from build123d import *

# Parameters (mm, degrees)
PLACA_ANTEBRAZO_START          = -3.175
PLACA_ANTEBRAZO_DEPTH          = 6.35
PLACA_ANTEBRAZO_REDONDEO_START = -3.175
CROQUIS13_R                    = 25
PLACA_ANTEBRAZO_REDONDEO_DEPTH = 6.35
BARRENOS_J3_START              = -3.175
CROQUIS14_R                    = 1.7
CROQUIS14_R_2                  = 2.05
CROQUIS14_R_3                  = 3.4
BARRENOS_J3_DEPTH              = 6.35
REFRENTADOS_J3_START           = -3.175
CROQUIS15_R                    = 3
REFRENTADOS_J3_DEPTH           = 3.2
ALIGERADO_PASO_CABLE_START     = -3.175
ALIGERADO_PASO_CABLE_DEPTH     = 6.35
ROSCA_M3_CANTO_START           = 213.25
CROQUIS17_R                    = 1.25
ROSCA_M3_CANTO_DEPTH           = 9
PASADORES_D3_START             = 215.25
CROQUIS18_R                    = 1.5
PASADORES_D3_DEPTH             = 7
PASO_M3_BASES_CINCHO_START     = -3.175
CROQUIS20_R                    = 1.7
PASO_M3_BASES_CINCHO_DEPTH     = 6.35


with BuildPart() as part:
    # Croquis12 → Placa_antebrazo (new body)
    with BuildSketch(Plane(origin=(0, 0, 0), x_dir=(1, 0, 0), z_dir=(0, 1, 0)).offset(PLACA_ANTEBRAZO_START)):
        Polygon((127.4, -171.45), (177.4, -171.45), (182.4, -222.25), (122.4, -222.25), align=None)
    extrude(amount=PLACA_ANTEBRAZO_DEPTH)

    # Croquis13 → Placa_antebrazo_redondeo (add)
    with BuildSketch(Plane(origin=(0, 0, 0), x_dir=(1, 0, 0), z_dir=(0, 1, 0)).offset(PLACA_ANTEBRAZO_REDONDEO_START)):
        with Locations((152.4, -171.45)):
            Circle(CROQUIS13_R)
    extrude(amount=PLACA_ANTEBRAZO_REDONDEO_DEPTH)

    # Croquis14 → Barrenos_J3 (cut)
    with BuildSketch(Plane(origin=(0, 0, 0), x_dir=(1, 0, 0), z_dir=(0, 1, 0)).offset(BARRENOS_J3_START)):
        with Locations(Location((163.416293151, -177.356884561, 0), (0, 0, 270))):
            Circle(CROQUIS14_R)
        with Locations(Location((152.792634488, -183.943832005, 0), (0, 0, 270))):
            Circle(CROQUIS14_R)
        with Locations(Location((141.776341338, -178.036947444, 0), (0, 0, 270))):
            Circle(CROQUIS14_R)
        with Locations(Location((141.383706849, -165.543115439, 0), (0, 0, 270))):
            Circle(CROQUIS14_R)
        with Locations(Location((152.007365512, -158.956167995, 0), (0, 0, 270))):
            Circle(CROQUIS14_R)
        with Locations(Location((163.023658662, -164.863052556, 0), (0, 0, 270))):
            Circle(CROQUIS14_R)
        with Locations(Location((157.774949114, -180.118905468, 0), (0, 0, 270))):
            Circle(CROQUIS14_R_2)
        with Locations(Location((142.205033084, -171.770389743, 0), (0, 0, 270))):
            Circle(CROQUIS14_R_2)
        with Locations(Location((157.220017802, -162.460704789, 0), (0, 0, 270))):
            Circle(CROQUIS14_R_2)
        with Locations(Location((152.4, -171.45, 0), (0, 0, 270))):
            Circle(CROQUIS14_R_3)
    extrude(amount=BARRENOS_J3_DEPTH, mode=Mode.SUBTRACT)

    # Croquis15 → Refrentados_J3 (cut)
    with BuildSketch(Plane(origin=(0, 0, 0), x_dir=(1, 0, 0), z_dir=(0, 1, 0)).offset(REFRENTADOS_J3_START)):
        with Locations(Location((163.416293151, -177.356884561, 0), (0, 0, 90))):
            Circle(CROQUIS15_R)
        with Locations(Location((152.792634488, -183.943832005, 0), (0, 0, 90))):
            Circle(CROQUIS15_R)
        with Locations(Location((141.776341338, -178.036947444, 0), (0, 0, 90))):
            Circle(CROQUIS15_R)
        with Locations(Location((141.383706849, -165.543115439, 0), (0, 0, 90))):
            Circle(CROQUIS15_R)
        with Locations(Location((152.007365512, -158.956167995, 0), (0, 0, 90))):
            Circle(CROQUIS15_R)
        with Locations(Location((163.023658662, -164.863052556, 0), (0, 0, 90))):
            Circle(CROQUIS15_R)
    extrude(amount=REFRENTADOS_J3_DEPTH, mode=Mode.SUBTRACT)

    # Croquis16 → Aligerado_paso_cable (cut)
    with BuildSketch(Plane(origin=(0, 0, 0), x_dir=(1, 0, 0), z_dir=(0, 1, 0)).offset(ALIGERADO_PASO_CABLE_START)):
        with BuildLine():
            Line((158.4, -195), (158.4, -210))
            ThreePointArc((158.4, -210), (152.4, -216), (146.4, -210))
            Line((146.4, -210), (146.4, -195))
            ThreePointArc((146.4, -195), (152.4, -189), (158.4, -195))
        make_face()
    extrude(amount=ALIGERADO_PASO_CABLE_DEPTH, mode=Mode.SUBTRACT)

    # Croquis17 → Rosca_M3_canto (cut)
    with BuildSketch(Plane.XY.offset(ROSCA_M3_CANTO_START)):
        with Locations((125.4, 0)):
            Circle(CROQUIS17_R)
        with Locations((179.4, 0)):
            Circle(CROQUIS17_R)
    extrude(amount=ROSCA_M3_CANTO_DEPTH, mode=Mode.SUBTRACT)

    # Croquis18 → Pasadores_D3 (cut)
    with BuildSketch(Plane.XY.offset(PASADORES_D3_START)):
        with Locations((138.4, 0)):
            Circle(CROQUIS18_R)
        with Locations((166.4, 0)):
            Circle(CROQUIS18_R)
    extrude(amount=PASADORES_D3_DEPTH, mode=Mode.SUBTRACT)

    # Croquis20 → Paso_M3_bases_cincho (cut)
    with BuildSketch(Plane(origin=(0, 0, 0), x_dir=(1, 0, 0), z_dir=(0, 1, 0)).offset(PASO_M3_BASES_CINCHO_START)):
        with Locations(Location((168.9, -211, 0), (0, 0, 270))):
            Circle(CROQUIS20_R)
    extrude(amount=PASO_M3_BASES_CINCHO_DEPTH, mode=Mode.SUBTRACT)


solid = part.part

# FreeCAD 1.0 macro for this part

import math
import FreeCAD as App
import Part
import Sketcher
from FreeCAD import Vector
Q = App.Units.Quantity


def add_polygon(sketch, points):
    """Adds a closed chain of lines whose ends are joined by coincident constraints."""
    first, n = sketch.GeometryCount, len(points)
    for a, b in zip(points, points[1:] + points[:1]):
        sketch.addGeometry(Part.LineSegment(App.Vector(*a, 0), App.Vector(*b, 0)), False)
    for i in range(n):
        sketch.addConstraint(Sketcher.Constraint("Coincident", first + i, 2, first + (i + 1) % n, 1))

doc = App.newDocument("Part")
body = doc.addObject("PartDesign::Body", "Body")

sketch1 = body.newObject("Sketcher::SketchObject", "Sketch")
sketch1.AttachmentSupport = (doc.getObject("XZ_Plane"), [""])
sketch1.MapMode = "FlatFace"
sketch1.AttachmentOffset = App.Placement(Vector(0, 0, 3.175), App.Rotation())
add_polygon(sketch1, [(177, 171), (127, 171), (122, 222), (182, 222)])
sketch1.addConstraint([
    Sketcher.Constraint("Horizontal", 0),
    Sketcher.Constraint("Horizontal", 2),
    Sketcher.Constraint("Equal", 1, 3),
    Sketcher.Constraint("DistanceX", 0, 2, 0, 1, Q("50 mm")),
    Sketcher.Constraint("DistanceX", 2, 1, 2, 2, Q("60 mm")),
    Sketcher.Constraint("DistanceX", -1, 1, 0, 2, Q("127.4 mm")),
    Sketcher.Constraint("DistanceY", 0, 2, 1, 2, Q("50.8 mm")),
    Sketcher.Constraint("DistanceY", -1, 1, 0, 2, Q("171.45 mm")),
])
pad1 = body.newObject("PartDesign::Pad", "Pad")
pad1.Profile = sketch1
pad1.Length = 6.35
pad1.Reversed = True

sketch2 = body.newObject("Sketcher::SketchObject", "Sketch001")
sketch2.AttachmentSupport = (doc.getObject("XZ_Plane"), [""])
sketch2.MapMode = "FlatFace"
sketch2.AttachmentOffset = App.Placement(Vector(0, 0, 3.175), App.Rotation())
sketch2.addGeometry(Part.Circle(Vector(152, 171, 0), Vector(0, 0, 1), 25), False)
sketch2.addConstraint([
    Sketcher.Constraint("Diameter", 0, Q("50 mm")),
    Sketcher.Constraint("DistanceX", -1, 1, 0, 3, Q("152.4 mm")),
    Sketcher.Constraint("DistanceY", -1, 1, 0, 3, Q("171.45 mm")),
])
pad2 = body.newObject("PartDesign::Pad", "Pad001")
pad2.Profile = sketch2
pad2.Length = 6.35
pad2.Reversed = True

sketch3 = body.newObject("Sketcher::SketchObject", "Sketch002")
sketch3.AttachmentSupport = (doc.getObject("XZ_Plane"), [""])
sketch3.MapMode = "FlatFace"
sketch3.AttachmentOffset = App.Placement(Vector(0, 0, 3.175), App.Rotation())
sketch3.addGeometry([
    Part.Circle(Vector(163.4, 177.4, 0), Vector(0, 0, 1), 1.7),
    Part.Circle(Vector(152.8, 183.9, 0), Vector(0, 0, 1), 1.7),
    Part.Circle(Vector(141.8, 178, 0), Vector(0, 0, 1), 1.7),
    Part.Circle(Vector(141.4, 165.5, 0), Vector(0, 0, 1), 1.7),
    Part.Circle(Vector(152, 159, 0), Vector(0, 0, 1), 1.7),
    Part.Circle(Vector(163, 164.9, 0), Vector(0, 0, 1), 1.7),
    Part.Circle(Vector(157.8, 180.1, 0), Vector(0, 0, 1), 2),
    Part.Circle(Vector(142.2, 171.8, 0), Vector(0, 0, 1), 2),
    Part.Circle(Vector(157.2, 162.5, 0), Vector(0, 0, 1), 2),
    Part.Circle(Vector(152.4, 171.4, 0), Vector(0, 0, 1), 3.4),
], False)
sketch3.addConstraint([
    Sketcher.Constraint("Equal", 0, 1),
    Sketcher.Constraint("Equal", 1, 2),
    Sketcher.Constraint("Equal", 2, 3),
    Sketcher.Constraint("Equal", 3, 4),
    Sketcher.Constraint("Equal", 4, 5),
    Sketcher.Constraint("Equal", 6, 7),
    Sketcher.Constraint("Equal", 7, 8),
    Sketcher.Constraint("Diameter", 0, Q("3.4 mm")),
    Sketcher.Constraint("Diameter", 6, Q("4.1 mm")),
    Sketcher.Constraint("Diameter", 9, Q("6.8 mm")),
    Sketcher.Constraint("DistanceX", -1, 1, 9, 3, Q("152.4 mm")),
    Sketcher.Constraint("DistanceY", -1, 1, 9, 3, Q("171.45 mm")),
    Sketcher.Constraint("DistanceX", 7, 3, 1, 3, Q("10.587601 mm")),
    Sketcher.Constraint("DistanceY", 8, 3, 6, 3, Q("17.658201 mm")),
    Sketcher.Constraint("DistanceX", -1, 1, 2, 3, Q("141.776341 mm")),
    Sketcher.Constraint("DistanceX", -1, 1, 5, 3, Q("163.023659 mm")),
    Sketcher.Constraint("DistanceX", -1, 1, 6, 3, Q("157.774949 mm")),
    Sketcher.Constraint("DistanceY", -1, 1, 7, 3, Q("171.77039 mm")),
    Sketcher.Constraint("DistanceX", 1, 3, 0, 3, Q("10.623659 mm")),
    Sketcher.Constraint("DistanceX", 2, 3, 0, 3, Q("21.639952 mm")),
    Sketcher.Constraint("DistanceY", 3, 3, 0, 3, Q("11.813769 mm")),
    Sketcher.Constraint("DistanceX", 3, 3, 4, 3, Q("10.623659 mm")),
    Sketcher.Constraint("DistanceY", 4, 3, 2, 3, Q("19.080779 mm")),
    Sketcher.Constraint("DistanceX", 4, 3, 1, 3, Q("0.785269 mm")),
    Sketcher.Constraint("DistanceY", 5, 3, 1, 3, Q("19.080779 mm")),
    Sketcher.Constraint("DistanceY", 0, 3, 6, 3, Q("2.762021 mm")),
    Sketcher.Constraint("DistanceY", 2, 3, 6, 3, Q("2.081958 mm")),
    Sketcher.Constraint("DistanceY", 4, 3, 7, 3, Q("12.814222 mm")),
    Sketcher.Constraint("DistanceX", 8, 3, 5, 3, Q("5.803641 mm")),
    Sketcher.Constraint("DistanceY", -1, 1, 1, 3, Q("183.943832 mm")),
])
pocket1 = body.newObject("PartDesign::Pocket", "Pocket")
pocket1.Profile = sketch3
pocket1.Length = 6.35

sketch4 = body.newObject("Sketcher::SketchObject", "Sketch003")
sketch4.AttachmentSupport = (doc.getObject("XZ_Plane"), [""])
sketch4.MapMode = "FlatFace"
sketch4.AttachmentOffset = App.Placement(Vector(0, 0, 3.175), App.Rotation())
sketch4.addGeometry([
    Part.Circle(Vector(163.4, 177.4, 0), Vector(0, 0, 1), 3),
    Part.Circle(Vector(152.8, 183.9, 0), Vector(0, 0, 1), 3),
    Part.Circle(Vector(141.8, 178, 0), Vector(0, 0, 1), 3),
    Part.Circle(Vector(141.4, 165.5, 0), Vector(0, 0, 1), 3),
    Part.Circle(Vector(152, 159, 0), Vector(0, 0, 1), 3),
    Part.Circle(Vector(163, 164.9, 0), Vector(0, 0, 1), 3),
], False)
sketch4.addConstraint([
    Sketcher.Constraint("Equal", 0, 1),
    Sketcher.Constraint("Equal", 1, 2),
    Sketcher.Constraint("Equal", 2, 3),
    Sketcher.Constraint("Equal", 3, 4),
    Sketcher.Constraint("Equal", 4, 5),
    Sketcher.Constraint("Diameter", 0, Q("6 mm")),
    Sketcher.Constraint("DistanceX", -1, 1, 2, 3, Q("141.776341 mm")),
    Sketcher.Constraint("DistanceX", -1, 1, 5, 3, Q("163.023659 mm")),
    Sketcher.Constraint("DistanceX", 1, 3, 0, 3, Q("10.623659 mm")),
    Sketcher.Constraint("DistanceX", 2, 3, 0, 3, Q("21.639952 mm")),
    Sketcher.Constraint("DistanceY", 3, 3, 0, 3, Q("11.813769 mm")),
    Sketcher.Constraint("DistanceX", 3, 3, 4, 3, Q("10.623659 mm")),
    Sketcher.Constraint("DistanceY", 4, 3, 2, 3, Q("19.080779 mm")),
    Sketcher.Constraint("DistanceX", 4, 3, 1, 3, Q("0.785269 mm")),
    Sketcher.Constraint("DistanceY", 5, 3, 1, 3, Q("19.080779 mm")),
    Sketcher.Constraint("DistanceY", -1, 1, 0, 3, Q("177.356885 mm")),
    Sketcher.Constraint("DistanceY", -1, 1, 1, 3, Q("183.943832 mm")),
    Sketcher.Constraint("DistanceY", -1, 1, 2, 3, Q("178.036947 mm")),
])
pocket2 = body.newObject("PartDesign::Pocket", "Pocket001")
pocket2.Profile = sketch4
pocket2.Length = 3.2

sketch5 = body.newObject("Sketcher::SketchObject", "Sketch004")
sketch5.AttachmentSupport = (doc.getObject("XZ_Plane"), [""])
sketch5.MapMode = "FlatFace"
sketch5.AttachmentOffset = App.Placement(Vector(0, 0, 3.175), App.Rotation())
sketch5.addGeometry([
    Part.LineSegment(Vector(158, 210, 0), Vector(158, 195, 0)),
    Part.ArcOfCircle(Part.Circle(Vector(152, 195, 0), Vector(0, 0, 1), 6), math.radians(180), math.radians(360)),
    Part.LineSegment(Vector(146, 195, 0), Vector(146, 210, 0)),
    Part.ArcOfCircle(Part.Circle(Vector(152, 210, 0), Vector(0, 0, 1), 6), math.radians(0), math.radians(180)),
], False)
sketch5.addConstraint([
    Sketcher.Constraint("Tangent", 0, 2, 1, 2),
    Sketcher.Constraint("Tangent", 1, 1, 2, 1),
    Sketcher.Constraint("Tangent", 2, 2, 3, 2),
    Sketcher.Constraint("Tangent", 3, 1, 0, 1),
    Sketcher.Constraint("Vertical", 0),
    Sketcher.Constraint("Vertical", 2),
    Sketcher.Constraint("Radius", 1, Q("6 mm")),
    Sketcher.Constraint("DistanceY", 0, 2, 0, 1, Q("15 mm")),
    Sketcher.Constraint("DistanceY", -1, 1, 1, 3, Q("195 mm")),
    Sketcher.Constraint("DistanceX", -1, 1, 1, 3, Q("152.4 mm")),
])
pocket3 = body.newObject("PartDesign::Pocket", "Pocket002")
pocket3.Profile = sketch5
pocket3.Length = 6.35

sketch6 = body.newObject("Sketcher::SketchObject", "Sketch005")
sketch6.AttachmentSupport = (doc.getObject("XY_Plane"), [""])
sketch6.MapMode = "FlatFace"
sketch6.AttachmentOffset = App.Placement(Vector(0, 0, 213.25), App.Rotation())
sketch6.addGeometry([
    Part.Circle(Vector(125.4, 0, 0), Vector(0, 0, 1), 1.2),
    Part.Circle(Vector(179.4, 0, 0), Vector(0, 0, 1), 1.2),
], False)
sketch6.addConstraint([
    Sketcher.Constraint("Equal", 0, 1),
    Sketcher.Constraint("PointOnObject", 0, 3, -1),
    Sketcher.Constraint("PointOnObject", 1, 3, -1),
    Sketcher.Constraint("Diameter", 0, Q("2.5 mm")),
    Sketcher.Constraint("DistanceX", 0, 3, 1, 3, Q("54 mm")),
    Sketcher.Constraint("DistanceX", -1, 1, 0, 3, Q("125.4 mm")),
])
pocket4 = body.newObject("PartDesign::Pocket", "Pocket003")
pocket4.Profile = sketch6
pocket4.Length = 9
pocket4.Reversed = True

sketch7 = body.newObject("Sketcher::SketchObject", "Sketch006")
sketch7.AttachmentSupport = (doc.getObject("XY_Plane"), [""])
sketch7.MapMode = "FlatFace"
sketch7.AttachmentOffset = App.Placement(Vector(0, 0, 215.25), App.Rotation())
sketch7.addGeometry([
    Part.Circle(Vector(138.4, 0, 0), Vector(0, 0, 1), 1.5),
    Part.Circle(Vector(166.4, 0, 0), Vector(0, 0, 1), 1.5),
], False)
sketch7.addConstraint([
    Sketcher.Constraint("Equal", 0, 1),
    Sketcher.Constraint("PointOnObject", 0, 3, -1),
    Sketcher.Constraint("PointOnObject", 1, 3, -1),
    Sketcher.Constraint("Diameter", 0, Q("3 mm")),
    Sketcher.Constraint("DistanceX", 0, 3, 1, 3, Q("28 mm")),
    Sketcher.Constraint("DistanceX", -1, 1, 0, 3, Q("138.4 mm")),
])
pocket5 = body.newObject("PartDesign::Pocket", "Pocket004")
pocket5.Profile = sketch7
pocket5.Length = 7
pocket5.Reversed = True

sketch8 = body.newObject("Sketcher::SketchObject", "Sketch007")
sketch8.AttachmentSupport = (doc.getObject("XZ_Plane"), [""])
sketch8.MapMode = "FlatFace"
sketch8.AttachmentOffset = App.Placement(Vector(0, 0, 3.175), App.Rotation())
sketch8.addGeometry(Part.Circle(Vector(168.9, 211, 0), Vector(0, 0, 1), 1.7), False)
sketch8.addConstraint([
    Sketcher.Constraint("Diameter", 0, Q("3.4 mm")),
    Sketcher.Constraint("DistanceY", -1, 1, 0, 3, Q("211 mm")),
    Sketcher.Constraint("DistanceX", -1, 1, 0, 3, Q("168.9 mm")),
])
pocket6 = body.newObject("PartDesign::Pocket", "Pocket005")
pocket6.Profile = sketch8
pocket6.Length = 6.35

doc.recompute()
